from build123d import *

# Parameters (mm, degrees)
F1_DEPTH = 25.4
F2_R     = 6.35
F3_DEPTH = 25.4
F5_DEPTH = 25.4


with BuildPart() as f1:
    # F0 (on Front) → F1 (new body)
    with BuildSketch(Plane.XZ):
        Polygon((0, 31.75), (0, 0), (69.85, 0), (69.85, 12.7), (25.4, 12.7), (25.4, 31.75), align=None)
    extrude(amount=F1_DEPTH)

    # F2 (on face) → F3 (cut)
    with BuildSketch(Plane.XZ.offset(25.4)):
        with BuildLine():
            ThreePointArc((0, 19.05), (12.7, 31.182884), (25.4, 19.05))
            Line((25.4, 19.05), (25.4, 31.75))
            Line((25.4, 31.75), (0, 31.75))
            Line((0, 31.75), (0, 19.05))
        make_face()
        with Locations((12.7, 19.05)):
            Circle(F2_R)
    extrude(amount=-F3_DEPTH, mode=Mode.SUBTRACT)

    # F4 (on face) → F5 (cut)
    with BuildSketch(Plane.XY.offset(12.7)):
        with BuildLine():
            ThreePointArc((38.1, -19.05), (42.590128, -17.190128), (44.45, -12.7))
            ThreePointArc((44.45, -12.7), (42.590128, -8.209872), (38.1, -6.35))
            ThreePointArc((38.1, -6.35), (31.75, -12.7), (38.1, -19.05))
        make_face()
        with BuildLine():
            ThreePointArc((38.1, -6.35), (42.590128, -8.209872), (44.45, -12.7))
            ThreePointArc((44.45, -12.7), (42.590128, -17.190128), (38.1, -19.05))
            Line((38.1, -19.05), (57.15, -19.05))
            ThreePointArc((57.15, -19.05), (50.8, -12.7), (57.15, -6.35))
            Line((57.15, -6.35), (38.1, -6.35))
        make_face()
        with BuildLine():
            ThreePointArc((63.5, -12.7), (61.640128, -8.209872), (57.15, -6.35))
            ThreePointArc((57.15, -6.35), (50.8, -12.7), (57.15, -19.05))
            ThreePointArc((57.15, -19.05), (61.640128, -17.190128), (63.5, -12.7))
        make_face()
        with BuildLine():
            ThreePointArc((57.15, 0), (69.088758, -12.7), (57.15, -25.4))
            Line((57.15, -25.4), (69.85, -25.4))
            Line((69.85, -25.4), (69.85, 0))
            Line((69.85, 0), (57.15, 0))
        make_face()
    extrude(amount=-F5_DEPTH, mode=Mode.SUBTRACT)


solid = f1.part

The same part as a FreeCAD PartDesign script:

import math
import FreeCAD as App
import Part
import Sketcher
Q = App.Units.Quantity


def add_polygon(sketch, points):
    """Adds a closed chain of lines whose ends are joined by coincident constraints."""
    first, n = sketch.GeometryCount, len(points)
    for a, b in zip(points, points[1:] + points[:1]):
        sketch.addGeometry(Part.LineSegment(App.Vector(*a, 0), App.Vector(*b, 0)), False)
    for i in range(n):
        sketch.addConstraint(Sketcher.Constraint("Coincident", first + i, 2, first + (i + 1) % n, 1))

doc = App.newDocument("Part")
body = doc.addObject("PartDesign::Body", "Body")

# Sketch on XZ plane
sketch1 = body.newObject("Sketcher::SketchObject", "Sketch")
sketch1.AttachmentSupport = (doc.getObject("XZ_Plane"), [""])
sketch1.MapMode = "FlatFace"
add_polygon(sketch1, [(0, 32), (0, 0), (70, 0), (70, 13), (25, 13), (25, 32)])  # lines 0-5
sketch1.addConstraint(Sketcher.Constraint("Vertical", 0))
sketch1.addConstraint(Sketcher.Constraint("Horizontal", 1))
sketch1.addConstraint(Sketcher.Constraint("Vertical", 2))
sketch1.addConstraint(Sketcher.Constraint("Horizontal", 3))
sketch1.addConstraint(Sketcher.Constraint("Vertical", 4))
sketch1.addConstraint(Sketcher.Constraint("Horizontal", 5))
sketch1.addConstraint(Sketcher.Constraint("Coincident", 0, 2, -1, 1))
sketch1.addConstraint(Sketcher.Constraint("DistanceX", 5, 2, 5, 1, Q("1 in")))
sketch1.addConstraint(Sketcher.Constraint("DistanceY", 2, 1, 2, 2, Q("0.5 in")))
sketch1.addConstraint(Sketcher.Constraint("DistanceX", 1, 1, 1, 2, Q("2.75 in")))
sketch1.addConstraint(Sketcher.Constraint("DistanceY", 0, 2, 0, 1, Q("1.25 in")))
pad1 = body.newObject("PartDesign::Pad", "Pad")
pad1.Profile = sketch1
pad1.Length = Q("1 in")

# Sketch on XZ plane
sketch2 = body.newObject("Sketcher::SketchObject", "Sketch001")
sketch2.AttachmentSupport = (doc.getObject("XZ_Plane"), [""])
sketch2.MapMode = "FlatFace"
sketch2.AttachmentOffset = App.Placement(App.Vector(0, 0, 1 * 25.4), App.Rotation())
sketch2.addGeometry(Part.ArcOfCircle(Part.Circle(App.Vector(13, 18, 0), App.Vector(0, 0, 1), 13), math.radians(3), math.radians(177)), False)
sketch2.addGeometry(Part.LineSegment(App.Vector(25, 19, 0), App.Vector(25, 32, 0)), False)
sketch2.addGeometry(Part.LineSegment(App.Vector(25, 32, 0), App.Vector(0, 32, 0)), False)
sketch2.addGeometry(Part.LineSegment(App.Vector(0, 32, 0), App.Vector(0, 19, 0)), False)
sketch2.addGeometry(Part.Circle(App.Vector(13, 19, 0), App.Vector(0, 0, 1), 6), False)
sketch2.addConstraint(Sketcher.Constraint("Coincident", 0, 1, 1, 1))
sketch2.addConstraint(Sketcher.Constraint("Coincident", 1, 2, 2, 1))
sketch2.addConstraint(Sketcher.Constraint("Coincident", 2, 2, 3, 1))
sketch2.addConstraint(Sketcher.Constraint("Coincident", 3, 2, 0, 2))
sketch2.addConstraint(Sketcher.Constraint("Vertical", 1))
sketch2.addConstraint(Sketcher.Constraint("Horizontal", 2))
sketch2.addConstraint(Sketcher.Constraint("Vertical", 3))
sketch2.addConstraint(Sketcher.Constraint("PointOnObject", 2, 2, -2))
sketch2.addConstraint(Sketcher.Constraint("Horizontal", 4, 3, 0, 1))
sketch2.addConstraint(Sketcher.Constraint("Horizontal", 0, 1, 3, 2))
sketch2.addConstraint(Sketcher.Constraint("Vertical", 0, 3, 4, 3))
sketch2.addConstraint(Sketcher.Constraint("Diameter", 4, Q("0.5 in")))
sketch2.addConstraint(Sketcher.Constraint("DistanceX", 2, 2, 2, 1, Q("1 in")))
sketch2.addConstraint(Sketcher.Constraint("DistanceY", 1, 1, 1, 2, Q("0.5 in")))
sketch2.addConstraint(Sketcher.Constraint("DistanceY", -1, 1, 4, 3, Q("0.75 in")))
sketch2.addConstraint(Sketcher.Constraint("Radius", 0, Q("12.713254 mm")))
pocket1 = body.newObject("PartDesign::Pocket", "Pocket")
pocket1.Profile = sketch2
pocket1.Length = Q("1 in")

# Sketch on XY plane
sketch3 = body.newObject("Sketcher::SketchObject", "Sketch002")
sketch3.AttachmentSupport = (doc.getObject("XY_Plane"), [""])
sketch3.MapMode = "FlatFace"
sketch3.AttachmentOffset = App.Placement(App.Vector(0, 0, 0.5 * 25.4), App.Rotation())
sketch3.addGeometry(Part.ArcOfCircle(Part.Circle(App.Vector(38, -13, 0), App.Vector(0, 0, 1), 6), math.radians(90), math.radians(270)), False)
sketch3.addGeometry(Part.LineSegment(App.Vector(38, -19, 0), App.Vector(57, -19, 0)), False)
sketch3.addGeometry(Part.ArcOfCircle(Part.Circle(App.Vector(57, -13, 0), App.Vector(0, 0, 1), 6), math.radians(-90), math.radians(0)), False)
sketch3.addGeometry(Part.ArcOfCircle(Part.Circle(App.Vector(57, -13, 0), App.Vector(0, 0, 1), 6), math.radians(0), math.radians(90)), False)
sketch3.addGeometry(Part.LineSegment(App.Vector(57, -6, 0), App.Vector(38, -6, 0)), False)
sketch3.addGeometry(Part.ArcOfCircle(Part.Circle(App.Vector(56, -13, 0), App.Vector(0, 0, 1), 13), math.radians(-86), math.radians(86)), False)
sketch3.addGeometry(Part.LineSegment(App.Vector(57, -25, 0), App.Vector(70, -25, 0)), False)
sketch3.addGeometry(Part.LineSegment(App.Vector(70, -25, 0), App.Vector(70, 0, 0)), False)
sketch3.addGeometry(Part.LineSegment(App.Vector(70, 0, 0), App.Vector(57, 0, 0)), False)
sketch3.addConstraint(Sketcher.Constraint("Tangent", 0, 2, 1, 1))
sketch3.addConstraint(Sketcher.Constraint("Tangent", 1, 2, 2, 1))
sketch3.addConstraint(Sketcher.Constraint("Tangent", 2, 2, 3, 1))
sketch3.addConstraint(Sketcher.Constraint("Tangent", 3, 2, 4, 1))
sketch3.addConstraint(Sketcher.Constraint("Tangent", 4, 2, 0, 1))
sketch3.addConstraint(Sketcher.Constraint("Coincident", 5, 1, 6, 1))
sketch3.addConstraint(Sketcher.Constraint("Coincident", 6, 2, 7, 1))
sketch3.addConstraint(Sketcher.Constraint("Coincident", 7, 2, 8, 1))
sketch3.addConstraint(Sketcher.Constraint("Coincident", 8, 2, 5, 2))
sketch3.addConstraint(Sketcher.Constraint("Horizontal", 1))
sketch3.addConstraint(Sketcher.Constraint("Horizontal", 4))
sketch3.addConstraint(Sketcher.Constraint("Horizontal", 6))
sketch3.addConstraint(Sketcher.Constraint("Vertical", 7))
sketch3.addConstraint(Sketcher.Constraint("Horizontal", 8))
sketch3.addConstraint(Sketcher.Constraint("Equal", 0, 2))
sketch3.addConstraint(Sketcher.Constraint("PointOnObject", 7, 2, -1))
sketch3.addConstraint(Sketcher.Constraint("Horizontal", 3, 3, 5, 3))
sketch3.addConstraint(Sketcher.Constraint("Horizontal", 5, 3, 2, 2))
sketch3.addConstraint(Sketcher.Constraint("Vertical", 3, 2, 5, 1))
sketch3.addConstraint(Sketcher.Constraint("Vertical", 5, 1, 8, 2))
sketch3.addConstraint(Sketcher.Constraint("DistanceY", 7, 1, 7, 2, Q("1 in")))
sketch3.addConstraint(Sketcher.Constraint("Radius", 0, Q("0.25 in")))
sketch3.addConstraint(Sketcher.Constraint("DistanceX", 6, 1, 6, 2, Q("0.5 in")))
sketch3.addConstraint(Sketcher.Constraint("DistanceX", 0, 3, 2, 2, Q("1 in")))
sketch3.addConstraint(Sketcher.Constraint("DistanceX", -1, 1, 0, 3, Q("1.5 in")))
sketch3.addConstraint(Sketcher.Constraint("Radius", 5, Q("12.724269 mm")))
pocket2 = body.newObject("PartDesign::Pocket", "Pocket001")
pocket2.Profile = sketch3
pocket2.Length = Q("1 in")

doc.recompute()
